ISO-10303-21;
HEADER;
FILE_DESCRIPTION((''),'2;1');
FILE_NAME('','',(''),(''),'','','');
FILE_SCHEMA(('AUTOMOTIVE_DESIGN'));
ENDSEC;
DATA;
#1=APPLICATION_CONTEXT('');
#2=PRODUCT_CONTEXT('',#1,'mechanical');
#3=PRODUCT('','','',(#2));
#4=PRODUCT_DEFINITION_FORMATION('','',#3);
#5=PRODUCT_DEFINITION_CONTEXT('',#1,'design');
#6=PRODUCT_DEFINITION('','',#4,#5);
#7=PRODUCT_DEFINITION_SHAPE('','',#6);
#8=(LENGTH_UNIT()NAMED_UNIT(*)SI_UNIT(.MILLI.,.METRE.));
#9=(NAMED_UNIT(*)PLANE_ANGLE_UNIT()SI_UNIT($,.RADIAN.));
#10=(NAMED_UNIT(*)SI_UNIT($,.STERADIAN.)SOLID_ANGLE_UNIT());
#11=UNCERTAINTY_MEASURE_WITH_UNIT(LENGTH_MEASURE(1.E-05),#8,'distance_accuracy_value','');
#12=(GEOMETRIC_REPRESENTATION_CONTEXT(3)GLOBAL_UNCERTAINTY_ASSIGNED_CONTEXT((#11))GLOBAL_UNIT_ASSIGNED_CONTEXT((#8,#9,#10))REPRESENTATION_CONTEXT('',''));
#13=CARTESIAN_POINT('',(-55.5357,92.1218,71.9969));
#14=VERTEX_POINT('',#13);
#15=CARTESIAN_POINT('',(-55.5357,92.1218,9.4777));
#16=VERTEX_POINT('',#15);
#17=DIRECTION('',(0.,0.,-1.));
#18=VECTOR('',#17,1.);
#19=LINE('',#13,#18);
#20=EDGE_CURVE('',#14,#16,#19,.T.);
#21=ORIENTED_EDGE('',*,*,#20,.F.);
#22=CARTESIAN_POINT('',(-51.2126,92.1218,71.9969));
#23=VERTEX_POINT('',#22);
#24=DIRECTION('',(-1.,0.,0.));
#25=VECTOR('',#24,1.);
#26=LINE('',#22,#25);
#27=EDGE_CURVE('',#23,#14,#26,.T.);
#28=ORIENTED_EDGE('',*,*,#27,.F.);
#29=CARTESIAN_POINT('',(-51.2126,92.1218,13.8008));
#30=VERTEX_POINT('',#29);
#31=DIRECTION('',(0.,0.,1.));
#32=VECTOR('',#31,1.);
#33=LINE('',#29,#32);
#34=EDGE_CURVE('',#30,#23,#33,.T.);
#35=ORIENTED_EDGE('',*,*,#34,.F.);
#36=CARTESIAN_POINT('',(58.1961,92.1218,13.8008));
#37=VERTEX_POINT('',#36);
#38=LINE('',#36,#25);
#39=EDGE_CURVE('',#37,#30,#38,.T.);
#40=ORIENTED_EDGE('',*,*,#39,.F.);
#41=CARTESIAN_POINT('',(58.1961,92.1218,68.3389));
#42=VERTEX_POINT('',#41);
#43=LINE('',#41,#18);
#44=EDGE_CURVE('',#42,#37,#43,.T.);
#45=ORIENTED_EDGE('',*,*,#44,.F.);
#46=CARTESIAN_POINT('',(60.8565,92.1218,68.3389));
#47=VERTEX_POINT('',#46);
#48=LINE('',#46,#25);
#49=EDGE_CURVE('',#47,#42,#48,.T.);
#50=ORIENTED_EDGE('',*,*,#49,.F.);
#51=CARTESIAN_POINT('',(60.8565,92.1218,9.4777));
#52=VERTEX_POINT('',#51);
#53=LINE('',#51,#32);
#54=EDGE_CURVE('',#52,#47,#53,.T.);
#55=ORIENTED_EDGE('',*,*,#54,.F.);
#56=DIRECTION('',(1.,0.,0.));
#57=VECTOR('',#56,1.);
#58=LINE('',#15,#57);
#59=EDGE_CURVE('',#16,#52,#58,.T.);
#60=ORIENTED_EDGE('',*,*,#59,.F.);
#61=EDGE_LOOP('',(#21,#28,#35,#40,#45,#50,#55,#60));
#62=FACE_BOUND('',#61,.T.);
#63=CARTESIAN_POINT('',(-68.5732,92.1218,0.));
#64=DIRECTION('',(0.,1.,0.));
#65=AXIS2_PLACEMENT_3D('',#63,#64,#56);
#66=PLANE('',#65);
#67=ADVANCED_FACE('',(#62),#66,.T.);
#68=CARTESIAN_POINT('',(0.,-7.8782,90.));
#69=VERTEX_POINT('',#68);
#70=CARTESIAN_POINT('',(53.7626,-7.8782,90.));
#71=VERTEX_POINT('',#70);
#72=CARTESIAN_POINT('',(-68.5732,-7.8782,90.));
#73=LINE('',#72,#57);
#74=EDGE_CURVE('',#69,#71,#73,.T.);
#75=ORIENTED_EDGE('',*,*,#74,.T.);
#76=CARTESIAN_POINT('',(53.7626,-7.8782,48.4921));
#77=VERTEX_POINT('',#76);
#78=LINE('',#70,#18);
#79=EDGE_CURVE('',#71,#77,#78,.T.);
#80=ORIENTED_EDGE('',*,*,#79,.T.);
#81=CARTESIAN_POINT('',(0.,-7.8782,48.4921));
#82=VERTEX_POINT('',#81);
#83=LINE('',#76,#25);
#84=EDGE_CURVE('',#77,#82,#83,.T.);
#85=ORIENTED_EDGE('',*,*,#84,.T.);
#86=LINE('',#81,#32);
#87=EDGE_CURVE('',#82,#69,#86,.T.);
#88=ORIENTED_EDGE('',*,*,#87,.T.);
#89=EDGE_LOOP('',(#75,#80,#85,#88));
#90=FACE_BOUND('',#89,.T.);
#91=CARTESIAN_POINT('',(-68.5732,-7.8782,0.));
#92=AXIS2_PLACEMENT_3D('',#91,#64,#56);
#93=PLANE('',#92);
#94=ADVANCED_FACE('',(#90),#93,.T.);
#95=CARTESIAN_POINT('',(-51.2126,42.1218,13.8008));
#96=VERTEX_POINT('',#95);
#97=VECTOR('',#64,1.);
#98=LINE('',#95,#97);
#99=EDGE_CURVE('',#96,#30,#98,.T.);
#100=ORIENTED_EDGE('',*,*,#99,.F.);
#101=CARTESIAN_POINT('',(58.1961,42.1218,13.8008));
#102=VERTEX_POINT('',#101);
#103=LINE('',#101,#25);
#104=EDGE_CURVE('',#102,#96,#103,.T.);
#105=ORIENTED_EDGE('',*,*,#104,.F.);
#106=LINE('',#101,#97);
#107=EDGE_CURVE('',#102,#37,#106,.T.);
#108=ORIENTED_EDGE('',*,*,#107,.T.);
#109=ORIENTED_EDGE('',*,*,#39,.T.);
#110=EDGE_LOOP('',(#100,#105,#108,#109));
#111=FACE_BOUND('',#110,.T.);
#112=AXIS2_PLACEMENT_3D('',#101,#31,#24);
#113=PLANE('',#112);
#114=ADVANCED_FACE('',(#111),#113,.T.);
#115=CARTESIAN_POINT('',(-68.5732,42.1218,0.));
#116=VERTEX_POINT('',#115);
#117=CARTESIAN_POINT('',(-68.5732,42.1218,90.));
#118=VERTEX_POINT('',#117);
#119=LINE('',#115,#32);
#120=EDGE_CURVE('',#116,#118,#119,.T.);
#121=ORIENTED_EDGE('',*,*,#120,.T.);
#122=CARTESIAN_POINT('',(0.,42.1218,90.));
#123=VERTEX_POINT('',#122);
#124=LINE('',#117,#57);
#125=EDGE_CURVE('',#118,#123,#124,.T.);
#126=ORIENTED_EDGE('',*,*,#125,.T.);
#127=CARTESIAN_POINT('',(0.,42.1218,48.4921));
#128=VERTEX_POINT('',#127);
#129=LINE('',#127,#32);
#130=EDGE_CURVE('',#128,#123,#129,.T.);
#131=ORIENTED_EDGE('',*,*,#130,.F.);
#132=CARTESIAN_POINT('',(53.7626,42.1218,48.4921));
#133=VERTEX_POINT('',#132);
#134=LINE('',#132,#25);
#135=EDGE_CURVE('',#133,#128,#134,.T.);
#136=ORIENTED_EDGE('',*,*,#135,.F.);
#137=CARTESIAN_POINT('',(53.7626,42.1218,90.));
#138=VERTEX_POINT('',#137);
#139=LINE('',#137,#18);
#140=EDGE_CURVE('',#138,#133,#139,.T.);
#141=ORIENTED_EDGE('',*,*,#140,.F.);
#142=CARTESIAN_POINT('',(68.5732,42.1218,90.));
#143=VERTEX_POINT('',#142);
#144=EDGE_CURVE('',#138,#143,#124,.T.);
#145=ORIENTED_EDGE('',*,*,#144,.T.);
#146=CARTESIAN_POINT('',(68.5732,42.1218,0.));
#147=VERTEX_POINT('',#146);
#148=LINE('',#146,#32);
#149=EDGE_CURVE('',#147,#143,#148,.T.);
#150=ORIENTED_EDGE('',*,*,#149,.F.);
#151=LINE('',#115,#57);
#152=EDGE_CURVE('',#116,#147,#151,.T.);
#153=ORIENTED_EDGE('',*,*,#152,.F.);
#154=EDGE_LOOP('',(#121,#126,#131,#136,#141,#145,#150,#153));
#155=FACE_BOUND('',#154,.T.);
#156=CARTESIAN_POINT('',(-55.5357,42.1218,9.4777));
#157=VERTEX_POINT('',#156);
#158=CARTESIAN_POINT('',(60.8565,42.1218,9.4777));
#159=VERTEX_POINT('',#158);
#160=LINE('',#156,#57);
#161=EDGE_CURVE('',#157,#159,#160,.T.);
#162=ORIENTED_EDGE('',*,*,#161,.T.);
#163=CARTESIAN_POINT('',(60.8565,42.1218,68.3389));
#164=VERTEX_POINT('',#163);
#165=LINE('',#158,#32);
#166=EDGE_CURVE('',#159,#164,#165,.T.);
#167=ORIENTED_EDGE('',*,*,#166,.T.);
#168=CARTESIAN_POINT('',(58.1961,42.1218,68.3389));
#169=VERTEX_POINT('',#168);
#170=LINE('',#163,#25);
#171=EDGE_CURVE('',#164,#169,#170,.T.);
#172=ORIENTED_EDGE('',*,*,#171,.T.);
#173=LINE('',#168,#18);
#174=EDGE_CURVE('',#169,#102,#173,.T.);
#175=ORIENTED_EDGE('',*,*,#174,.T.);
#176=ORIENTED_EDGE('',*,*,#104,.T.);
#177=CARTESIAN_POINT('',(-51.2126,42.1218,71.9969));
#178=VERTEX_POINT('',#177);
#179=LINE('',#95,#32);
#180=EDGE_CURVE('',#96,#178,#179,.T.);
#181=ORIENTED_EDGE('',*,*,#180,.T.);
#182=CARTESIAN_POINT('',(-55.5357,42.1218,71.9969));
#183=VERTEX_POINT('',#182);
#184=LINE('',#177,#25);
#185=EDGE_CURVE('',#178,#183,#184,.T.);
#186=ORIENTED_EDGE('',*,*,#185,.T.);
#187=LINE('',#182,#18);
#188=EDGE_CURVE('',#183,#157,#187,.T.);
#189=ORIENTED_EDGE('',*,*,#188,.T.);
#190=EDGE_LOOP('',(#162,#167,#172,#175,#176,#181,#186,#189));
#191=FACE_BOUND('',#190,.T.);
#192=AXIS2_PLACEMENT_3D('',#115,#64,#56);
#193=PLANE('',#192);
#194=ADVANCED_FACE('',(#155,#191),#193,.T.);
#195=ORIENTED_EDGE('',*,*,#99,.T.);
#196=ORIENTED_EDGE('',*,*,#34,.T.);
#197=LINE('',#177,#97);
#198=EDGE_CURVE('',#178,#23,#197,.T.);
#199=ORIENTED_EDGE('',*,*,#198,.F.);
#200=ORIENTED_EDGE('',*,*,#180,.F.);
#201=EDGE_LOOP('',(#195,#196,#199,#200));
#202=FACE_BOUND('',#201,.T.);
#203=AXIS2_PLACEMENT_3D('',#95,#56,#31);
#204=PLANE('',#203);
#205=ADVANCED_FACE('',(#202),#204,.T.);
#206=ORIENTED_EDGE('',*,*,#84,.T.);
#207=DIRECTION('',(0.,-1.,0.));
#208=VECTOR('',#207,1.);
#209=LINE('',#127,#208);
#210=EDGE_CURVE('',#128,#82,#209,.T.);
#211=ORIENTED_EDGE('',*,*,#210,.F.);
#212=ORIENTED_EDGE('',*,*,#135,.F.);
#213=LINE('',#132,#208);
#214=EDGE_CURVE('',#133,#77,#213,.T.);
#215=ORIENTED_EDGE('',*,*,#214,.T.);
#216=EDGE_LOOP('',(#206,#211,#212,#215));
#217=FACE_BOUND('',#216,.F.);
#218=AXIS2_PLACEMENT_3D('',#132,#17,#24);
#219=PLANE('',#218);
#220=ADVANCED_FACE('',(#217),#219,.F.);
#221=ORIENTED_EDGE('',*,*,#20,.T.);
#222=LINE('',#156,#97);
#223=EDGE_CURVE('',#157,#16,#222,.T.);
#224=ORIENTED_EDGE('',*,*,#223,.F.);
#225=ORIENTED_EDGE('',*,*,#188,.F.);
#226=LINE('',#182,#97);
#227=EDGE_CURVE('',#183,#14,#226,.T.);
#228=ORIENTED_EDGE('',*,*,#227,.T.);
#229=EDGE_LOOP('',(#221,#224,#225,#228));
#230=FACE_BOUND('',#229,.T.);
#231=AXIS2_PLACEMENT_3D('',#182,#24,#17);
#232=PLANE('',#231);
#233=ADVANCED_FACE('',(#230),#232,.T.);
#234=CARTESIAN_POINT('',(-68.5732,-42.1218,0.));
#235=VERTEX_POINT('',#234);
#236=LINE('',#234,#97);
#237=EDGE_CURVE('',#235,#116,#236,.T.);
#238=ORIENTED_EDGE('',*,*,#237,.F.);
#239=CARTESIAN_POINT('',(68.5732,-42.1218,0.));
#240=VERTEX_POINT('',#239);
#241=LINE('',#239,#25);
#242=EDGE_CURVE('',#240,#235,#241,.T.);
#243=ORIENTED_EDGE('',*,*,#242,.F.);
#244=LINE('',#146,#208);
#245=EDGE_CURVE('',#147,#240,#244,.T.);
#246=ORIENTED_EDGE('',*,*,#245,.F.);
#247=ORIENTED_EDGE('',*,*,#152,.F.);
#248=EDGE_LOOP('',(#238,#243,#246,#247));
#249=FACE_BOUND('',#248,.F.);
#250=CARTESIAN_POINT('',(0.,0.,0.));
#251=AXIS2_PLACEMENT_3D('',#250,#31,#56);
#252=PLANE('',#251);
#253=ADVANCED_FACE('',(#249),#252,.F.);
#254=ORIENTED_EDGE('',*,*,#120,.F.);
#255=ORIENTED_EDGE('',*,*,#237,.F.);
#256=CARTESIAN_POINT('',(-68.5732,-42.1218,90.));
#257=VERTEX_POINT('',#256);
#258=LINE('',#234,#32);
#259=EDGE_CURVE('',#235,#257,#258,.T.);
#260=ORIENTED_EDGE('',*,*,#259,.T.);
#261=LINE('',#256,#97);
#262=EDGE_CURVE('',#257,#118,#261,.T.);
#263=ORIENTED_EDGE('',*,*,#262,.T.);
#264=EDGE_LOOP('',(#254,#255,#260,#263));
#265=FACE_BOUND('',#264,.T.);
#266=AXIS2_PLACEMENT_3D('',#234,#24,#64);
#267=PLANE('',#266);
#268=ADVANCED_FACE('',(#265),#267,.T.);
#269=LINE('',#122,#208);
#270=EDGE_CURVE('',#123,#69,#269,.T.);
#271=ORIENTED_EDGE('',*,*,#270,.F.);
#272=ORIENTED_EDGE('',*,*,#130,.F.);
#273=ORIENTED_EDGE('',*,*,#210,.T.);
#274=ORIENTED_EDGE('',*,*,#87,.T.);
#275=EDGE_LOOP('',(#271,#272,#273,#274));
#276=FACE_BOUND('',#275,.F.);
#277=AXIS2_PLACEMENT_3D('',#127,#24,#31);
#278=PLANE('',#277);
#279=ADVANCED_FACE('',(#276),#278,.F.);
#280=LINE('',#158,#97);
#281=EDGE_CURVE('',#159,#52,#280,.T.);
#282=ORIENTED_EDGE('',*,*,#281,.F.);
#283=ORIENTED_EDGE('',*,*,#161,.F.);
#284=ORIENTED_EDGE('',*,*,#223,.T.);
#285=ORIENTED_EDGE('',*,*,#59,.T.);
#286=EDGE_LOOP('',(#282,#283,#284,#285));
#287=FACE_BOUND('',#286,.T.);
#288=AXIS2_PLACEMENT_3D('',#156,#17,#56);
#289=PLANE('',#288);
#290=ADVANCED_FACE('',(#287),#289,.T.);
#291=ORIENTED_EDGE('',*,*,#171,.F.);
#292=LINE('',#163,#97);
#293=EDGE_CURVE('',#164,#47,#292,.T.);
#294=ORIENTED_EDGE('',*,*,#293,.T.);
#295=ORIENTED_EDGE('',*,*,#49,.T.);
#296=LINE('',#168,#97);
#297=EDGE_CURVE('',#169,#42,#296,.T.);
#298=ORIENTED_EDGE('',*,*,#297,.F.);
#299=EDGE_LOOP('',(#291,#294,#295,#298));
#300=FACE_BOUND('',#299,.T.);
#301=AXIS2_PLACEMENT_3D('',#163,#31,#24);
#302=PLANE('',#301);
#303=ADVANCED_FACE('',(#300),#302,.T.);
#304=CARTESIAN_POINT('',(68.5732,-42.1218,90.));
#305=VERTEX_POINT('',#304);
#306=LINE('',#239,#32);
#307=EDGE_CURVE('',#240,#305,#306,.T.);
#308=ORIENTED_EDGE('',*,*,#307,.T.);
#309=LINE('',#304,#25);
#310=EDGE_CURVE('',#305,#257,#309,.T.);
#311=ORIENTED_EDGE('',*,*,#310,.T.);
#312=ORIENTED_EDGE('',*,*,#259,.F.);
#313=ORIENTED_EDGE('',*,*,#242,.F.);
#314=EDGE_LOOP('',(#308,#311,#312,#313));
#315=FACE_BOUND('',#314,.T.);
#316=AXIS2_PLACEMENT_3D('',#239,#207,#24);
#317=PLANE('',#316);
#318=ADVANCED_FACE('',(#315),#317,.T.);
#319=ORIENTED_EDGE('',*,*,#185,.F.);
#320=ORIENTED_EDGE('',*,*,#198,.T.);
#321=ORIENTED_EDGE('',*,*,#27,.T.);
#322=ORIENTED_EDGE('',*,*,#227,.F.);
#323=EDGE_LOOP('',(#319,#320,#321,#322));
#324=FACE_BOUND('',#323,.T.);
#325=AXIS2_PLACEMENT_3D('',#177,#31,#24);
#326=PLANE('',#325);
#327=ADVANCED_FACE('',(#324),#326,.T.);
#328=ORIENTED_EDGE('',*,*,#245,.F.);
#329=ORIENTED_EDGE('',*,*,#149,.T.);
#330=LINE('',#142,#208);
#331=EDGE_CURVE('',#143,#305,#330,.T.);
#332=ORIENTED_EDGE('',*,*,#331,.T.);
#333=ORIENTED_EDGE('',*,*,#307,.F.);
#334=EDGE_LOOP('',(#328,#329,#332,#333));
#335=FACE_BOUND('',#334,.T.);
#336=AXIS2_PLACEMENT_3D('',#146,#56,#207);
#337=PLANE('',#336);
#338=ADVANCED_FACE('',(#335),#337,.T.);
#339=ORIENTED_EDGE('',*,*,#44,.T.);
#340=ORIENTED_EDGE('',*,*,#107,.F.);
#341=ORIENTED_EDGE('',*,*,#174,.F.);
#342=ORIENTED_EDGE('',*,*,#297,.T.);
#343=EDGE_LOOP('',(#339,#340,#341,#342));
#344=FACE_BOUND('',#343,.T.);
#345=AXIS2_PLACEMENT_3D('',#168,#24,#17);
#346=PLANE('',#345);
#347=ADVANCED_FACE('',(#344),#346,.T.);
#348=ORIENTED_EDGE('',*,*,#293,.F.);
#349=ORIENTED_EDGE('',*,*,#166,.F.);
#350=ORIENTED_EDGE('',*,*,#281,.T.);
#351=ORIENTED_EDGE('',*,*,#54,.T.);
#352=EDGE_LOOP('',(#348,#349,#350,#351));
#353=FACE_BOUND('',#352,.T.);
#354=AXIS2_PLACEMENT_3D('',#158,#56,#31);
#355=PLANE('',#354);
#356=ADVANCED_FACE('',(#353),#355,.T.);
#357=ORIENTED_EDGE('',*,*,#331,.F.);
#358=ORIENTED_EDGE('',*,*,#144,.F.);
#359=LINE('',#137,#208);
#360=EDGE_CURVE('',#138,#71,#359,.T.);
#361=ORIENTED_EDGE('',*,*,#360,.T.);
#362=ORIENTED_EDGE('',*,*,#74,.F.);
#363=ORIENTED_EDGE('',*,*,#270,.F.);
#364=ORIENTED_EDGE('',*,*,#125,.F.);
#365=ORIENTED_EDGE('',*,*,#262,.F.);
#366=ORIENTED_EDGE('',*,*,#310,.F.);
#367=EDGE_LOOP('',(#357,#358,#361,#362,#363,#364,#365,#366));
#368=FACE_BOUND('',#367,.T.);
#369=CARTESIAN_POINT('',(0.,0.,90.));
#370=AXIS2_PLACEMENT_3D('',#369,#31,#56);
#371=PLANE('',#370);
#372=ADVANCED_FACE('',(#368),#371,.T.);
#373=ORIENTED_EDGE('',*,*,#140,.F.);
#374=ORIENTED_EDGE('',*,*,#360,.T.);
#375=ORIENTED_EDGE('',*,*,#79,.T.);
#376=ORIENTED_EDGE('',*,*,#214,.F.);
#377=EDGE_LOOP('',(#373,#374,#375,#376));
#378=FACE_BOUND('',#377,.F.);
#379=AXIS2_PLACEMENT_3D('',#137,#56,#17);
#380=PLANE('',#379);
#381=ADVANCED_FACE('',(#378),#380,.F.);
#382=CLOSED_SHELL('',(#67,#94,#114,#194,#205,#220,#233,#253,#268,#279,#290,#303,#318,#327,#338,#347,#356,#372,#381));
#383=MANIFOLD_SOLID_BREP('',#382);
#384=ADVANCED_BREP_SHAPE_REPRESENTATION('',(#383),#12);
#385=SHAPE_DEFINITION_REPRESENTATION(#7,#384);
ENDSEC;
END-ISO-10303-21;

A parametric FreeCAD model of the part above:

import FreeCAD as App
import Part
import Sketcher

V = App.Vector
Q = App.Units.Quantity

doc = App.newDocument("Part")
body = doc.addObject("PartDesign::Body", "Body")

# Sketch on XY plane
sketch1 = body.newObject("Sketcher::SketchObject", "Sketch")
sketch1.AttachmentSupport = (doc.getObject("XY_Plane"), [""])
sketch1.MapMode = "FlatFace"
sketch1.addGeometry(Part.LineSegment(V(-68.5732, -42.1218, 0), V(68.5732, -42.1218, 0)), False)
sketch1.addGeometry(Part.LineSegment(V(68.5732, -42.1218, 0), V(68.5732, 42.1218, 0)), False)
sketch1.addGeometry(Part.LineSegment(V(68.5732, 42.1218, 0), V(-68.5732, 42.1218, 0)), False)
sketch1.addGeometry(Part.LineSegment(V(-68.5732, 42.1218, 0), V(-68.5732, -42.1218, 0)), False)
sketch1.addConstraint(Sketcher.Constraint("Coincident", 0, 2, 1, 1))
sketch1.addConstraint(Sketcher.Constraint("Coincident", 1, 2, 2, 1))
sketch1.addConstraint(Sketcher.Constraint("Coincident", 2, 2, 3, 1))
sketch1.addConstraint(Sketcher.Constraint("Coincident", 3, 2, 0, 1))
sketch1.addConstraint(Sketcher.Constraint("Horizontal", 0))
sketch1.addConstraint(Sketcher.Constraint("Vertical", 1))
sketch1.addConstraint(Sketcher.Constraint("Horizontal", 2))
sketch1.addConstraint(Sketcher.Constraint("Vertical", 3))
sketch1.addConstraint(Sketcher.Constraint("Symmetric", 0, 2, 2, 2, -1, 1))
sketch1.addConstraint(Sketcher.Constraint("DistanceX", 0, 1, 0, 2, Q("137.1464 mm")))
sketch1.addConstraint(Sketcher.Constraint("DistanceY", 1, 1, 1, 2, Q("84.2436 mm")))
pad1 = body.newObject("PartDesign::Pad", "Pad")
pad1.Profile = sketch1
pad1.Length = 90

# Sketch on XZ plane
sketch2 = body.newObject("Sketcher::SketchObject", "Sketch001")
sketch2.AttachmentSupport = (doc.getObject("XZ_Plane"), [""])
sketch2.MapMode = "FlatFace"
sketch2.AttachmentOffset = App.Placement(V(0, 0, -42.1218), App.Rotation())
sketch2.addGeometry(Part.LineSegment(V(0, 48.4921, 0), V(0, 90, 0)), False)
sketch2.addGeometry(Part.LineSegment(V(0, 90, 0), V(53.7626, 90, 0)), False)
sketch2.addGeometry(Part.LineSegment(V(53.7626, 90, 0), V(53.7626, 48.4921, 0)), False)
sketch2.addGeometry(Part.LineSegment(V(53.7626, 48.4921, 0), V(0, 48.4921, 0)), False)
sketch2.addConstraint(Sketcher.Constraint("Coincident", 0, 2, 1, 1))
sketch2.addConstraint(Sketcher.Constraint("Coincident", 1, 2, 2, 1))
sketch2.addConstraint(Sketcher.Constraint("Coincident", 2, 2, 3, 1))
sketch2.addConstraint(Sketcher.Constraint("Coincident", 3, 2, 0, 1))
sketch2.addConstraint(Sketcher.Constraint("Vertical", 0))
sketch2.addConstraint(Sketcher.Constraint("Horizontal", 1))
sketch2.addConstraint(Sketcher.Constraint("Vertical", 2))
sketch2.addConstraint(Sketcher.Constraint("Horizontal", 3))
sketch2.addConstraint(Sketcher.Constraint("PointOnObject", 0, 2, -2))
sketch2.addConstraint(Sketcher.Constraint("DistanceY", -1, 1, 0, 2, Q("90 mm")))
sketch2.addConstraint(Sketcher.Constraint("DistanceY", 0, 1, 0, 2, Q("41.508 mm")))
sketch2.addConstraint(Sketcher.Constraint("DistanceX", 1, 1, 1, 2, Q("53.7626 mm")))
pocket1 = body.newObject("PartDesign::Pocket", "Pocket")
pocket1.Profile = sketch2
pocket1.Length = 50
pocket1.Reversed = True

# Sketch on XZ plane
sketch3 = body.newObject("Sketcher::SketchObject", "Sketch002")
sketch3.AttachmentSupport = (doc.getObject("XZ_Plane"), [""])
sketch3.MapMode = "FlatFace"
sketch3.AttachmentOffset = App.Placement(V(0, 0, -42.1218), App.Rotation())
sketch3.addGeometry(Part.LineSegment(V(-55.5357, 9.4777, 0), V(-55.5357, 71.9969, 0)), False)
sketch3.addGeometry(Part.LineSegment(V(-55.5357, 71.9969, 0), V(-51.2126, 71.9969, 0)), False)
sketch3.addGeometry(Part.LineSegment(V(-51.2126, 71.9969, 0), V(-51.2126, 13.8008, 0)), False)
sketch3.addGeometry(Part.LineSegment(V(-51.2126, 13.8008, 0), V(58.1961, 13.8008, 0)), False)
sketch3.addGeometry(Part.LineSegment(V(58.1961, 13.8008, 0), V(58.1961, 68.3389, 0)), False)
sketch3.addGeometry(Part.LineSegment(V(58.1961, 68.3389, 0), V(60.8565, 68.3389, 0)), False)
sketch3.addGeometry(Part.LineSegment(V(60.8565, 68.3389, 0), V(60.8565, 9.4777, 0)), False)
sketch3.addGeometry(Part.LineSegment(V(60.8565, 9.4777, 0), V(-55.5357, 9.4777, 0)), False)
sketch3.addConstraint(Sketcher.Constraint("Coincident", 0, 2, 1, 1))
sketch3.addConstraint(Sketcher.Constraint("Coincident", 1, 2, 2, 1))
sketch3.addConstraint(Sketcher.Constraint("Coincident", 2, 2, 3, 1))
sketch3.addConstraint(Sketcher.Constraint("Coincident", 3, 2, 4, 1))
sketch3.addConstraint(Sketcher.Constraint("Coincident", 4, 2, 5, 1))
sketch3.addConstraint(Sketcher.Constraint("Coincident", 5, 2, 6, 1))
sketch3.addConstraint(Sketcher.Constraint("Coincident", 6, 2, 7, 1))
sketch3.addConstraint(Sketcher.Constraint("Coincident", 7, 2, 0, 1))
sketch3.addConstraint(Sketcher.Constraint("Vertical", 0))
sketch3.addConstraint(Sketcher.Constraint("Horizontal", 1))
sketch3.addConstraint(Sketcher.Constraint("Vertical", 2))
sketch3.addConstraint(Sketcher.Constraint("Horizontal", 3))
sketch3.addConstraint(Sketcher.Constraint("Vertical", 4))
sketch3.addConstraint(Sketcher.Constraint("Horizontal", 5))
sketch3.addConstraint(Sketcher.Constraint("Vertical", 6))
sketch3.addConstraint(Sketcher.Constraint("Horizontal", 7))
sketch3.addConstraint(Sketcher.Constraint("DistanceX", 1, 1, 1, 2, Q("4.323 mm")))
sketch3.addConstraint(Sketcher.Constraint("DistanceY", 2, 2, 2, 1, Q("58.196 mm")))
sketch3.addConstraint(Sketcher.Constraint("DistanceY", 4, 1, 4, 2, Q("54.538 mm")))
sketch3.addConstraint(Sketcher.Constraint("DistanceX", 3, 1, 3, 2, Q("109.4087 mm")))
sketch3.addConstraint(Sketcher.Constraint("DistanceX", 5, 1, 5, 2, Q("2.6604 mm")))
sketch3.addConstraint(Sketcher.Constraint("DistanceY", 0, 1, 0, 2, Q("62.5192 mm")))
sketch3.addConstraint(Sketcher.Constraint("DistanceY", -1, 1, 0, 2, Q("71.997 mm")))
sketch3.addConstraint(Sketcher.Constraint("DistanceX", -1, 1, 3, 2, Q("58.196 mm")))
pad2 = body.newObject("PartDesign::Pad", "Pad001")
pad2.Profile = sketch3
pad2.Length = 50
pad2.Reversed = True

doc.recompute()
